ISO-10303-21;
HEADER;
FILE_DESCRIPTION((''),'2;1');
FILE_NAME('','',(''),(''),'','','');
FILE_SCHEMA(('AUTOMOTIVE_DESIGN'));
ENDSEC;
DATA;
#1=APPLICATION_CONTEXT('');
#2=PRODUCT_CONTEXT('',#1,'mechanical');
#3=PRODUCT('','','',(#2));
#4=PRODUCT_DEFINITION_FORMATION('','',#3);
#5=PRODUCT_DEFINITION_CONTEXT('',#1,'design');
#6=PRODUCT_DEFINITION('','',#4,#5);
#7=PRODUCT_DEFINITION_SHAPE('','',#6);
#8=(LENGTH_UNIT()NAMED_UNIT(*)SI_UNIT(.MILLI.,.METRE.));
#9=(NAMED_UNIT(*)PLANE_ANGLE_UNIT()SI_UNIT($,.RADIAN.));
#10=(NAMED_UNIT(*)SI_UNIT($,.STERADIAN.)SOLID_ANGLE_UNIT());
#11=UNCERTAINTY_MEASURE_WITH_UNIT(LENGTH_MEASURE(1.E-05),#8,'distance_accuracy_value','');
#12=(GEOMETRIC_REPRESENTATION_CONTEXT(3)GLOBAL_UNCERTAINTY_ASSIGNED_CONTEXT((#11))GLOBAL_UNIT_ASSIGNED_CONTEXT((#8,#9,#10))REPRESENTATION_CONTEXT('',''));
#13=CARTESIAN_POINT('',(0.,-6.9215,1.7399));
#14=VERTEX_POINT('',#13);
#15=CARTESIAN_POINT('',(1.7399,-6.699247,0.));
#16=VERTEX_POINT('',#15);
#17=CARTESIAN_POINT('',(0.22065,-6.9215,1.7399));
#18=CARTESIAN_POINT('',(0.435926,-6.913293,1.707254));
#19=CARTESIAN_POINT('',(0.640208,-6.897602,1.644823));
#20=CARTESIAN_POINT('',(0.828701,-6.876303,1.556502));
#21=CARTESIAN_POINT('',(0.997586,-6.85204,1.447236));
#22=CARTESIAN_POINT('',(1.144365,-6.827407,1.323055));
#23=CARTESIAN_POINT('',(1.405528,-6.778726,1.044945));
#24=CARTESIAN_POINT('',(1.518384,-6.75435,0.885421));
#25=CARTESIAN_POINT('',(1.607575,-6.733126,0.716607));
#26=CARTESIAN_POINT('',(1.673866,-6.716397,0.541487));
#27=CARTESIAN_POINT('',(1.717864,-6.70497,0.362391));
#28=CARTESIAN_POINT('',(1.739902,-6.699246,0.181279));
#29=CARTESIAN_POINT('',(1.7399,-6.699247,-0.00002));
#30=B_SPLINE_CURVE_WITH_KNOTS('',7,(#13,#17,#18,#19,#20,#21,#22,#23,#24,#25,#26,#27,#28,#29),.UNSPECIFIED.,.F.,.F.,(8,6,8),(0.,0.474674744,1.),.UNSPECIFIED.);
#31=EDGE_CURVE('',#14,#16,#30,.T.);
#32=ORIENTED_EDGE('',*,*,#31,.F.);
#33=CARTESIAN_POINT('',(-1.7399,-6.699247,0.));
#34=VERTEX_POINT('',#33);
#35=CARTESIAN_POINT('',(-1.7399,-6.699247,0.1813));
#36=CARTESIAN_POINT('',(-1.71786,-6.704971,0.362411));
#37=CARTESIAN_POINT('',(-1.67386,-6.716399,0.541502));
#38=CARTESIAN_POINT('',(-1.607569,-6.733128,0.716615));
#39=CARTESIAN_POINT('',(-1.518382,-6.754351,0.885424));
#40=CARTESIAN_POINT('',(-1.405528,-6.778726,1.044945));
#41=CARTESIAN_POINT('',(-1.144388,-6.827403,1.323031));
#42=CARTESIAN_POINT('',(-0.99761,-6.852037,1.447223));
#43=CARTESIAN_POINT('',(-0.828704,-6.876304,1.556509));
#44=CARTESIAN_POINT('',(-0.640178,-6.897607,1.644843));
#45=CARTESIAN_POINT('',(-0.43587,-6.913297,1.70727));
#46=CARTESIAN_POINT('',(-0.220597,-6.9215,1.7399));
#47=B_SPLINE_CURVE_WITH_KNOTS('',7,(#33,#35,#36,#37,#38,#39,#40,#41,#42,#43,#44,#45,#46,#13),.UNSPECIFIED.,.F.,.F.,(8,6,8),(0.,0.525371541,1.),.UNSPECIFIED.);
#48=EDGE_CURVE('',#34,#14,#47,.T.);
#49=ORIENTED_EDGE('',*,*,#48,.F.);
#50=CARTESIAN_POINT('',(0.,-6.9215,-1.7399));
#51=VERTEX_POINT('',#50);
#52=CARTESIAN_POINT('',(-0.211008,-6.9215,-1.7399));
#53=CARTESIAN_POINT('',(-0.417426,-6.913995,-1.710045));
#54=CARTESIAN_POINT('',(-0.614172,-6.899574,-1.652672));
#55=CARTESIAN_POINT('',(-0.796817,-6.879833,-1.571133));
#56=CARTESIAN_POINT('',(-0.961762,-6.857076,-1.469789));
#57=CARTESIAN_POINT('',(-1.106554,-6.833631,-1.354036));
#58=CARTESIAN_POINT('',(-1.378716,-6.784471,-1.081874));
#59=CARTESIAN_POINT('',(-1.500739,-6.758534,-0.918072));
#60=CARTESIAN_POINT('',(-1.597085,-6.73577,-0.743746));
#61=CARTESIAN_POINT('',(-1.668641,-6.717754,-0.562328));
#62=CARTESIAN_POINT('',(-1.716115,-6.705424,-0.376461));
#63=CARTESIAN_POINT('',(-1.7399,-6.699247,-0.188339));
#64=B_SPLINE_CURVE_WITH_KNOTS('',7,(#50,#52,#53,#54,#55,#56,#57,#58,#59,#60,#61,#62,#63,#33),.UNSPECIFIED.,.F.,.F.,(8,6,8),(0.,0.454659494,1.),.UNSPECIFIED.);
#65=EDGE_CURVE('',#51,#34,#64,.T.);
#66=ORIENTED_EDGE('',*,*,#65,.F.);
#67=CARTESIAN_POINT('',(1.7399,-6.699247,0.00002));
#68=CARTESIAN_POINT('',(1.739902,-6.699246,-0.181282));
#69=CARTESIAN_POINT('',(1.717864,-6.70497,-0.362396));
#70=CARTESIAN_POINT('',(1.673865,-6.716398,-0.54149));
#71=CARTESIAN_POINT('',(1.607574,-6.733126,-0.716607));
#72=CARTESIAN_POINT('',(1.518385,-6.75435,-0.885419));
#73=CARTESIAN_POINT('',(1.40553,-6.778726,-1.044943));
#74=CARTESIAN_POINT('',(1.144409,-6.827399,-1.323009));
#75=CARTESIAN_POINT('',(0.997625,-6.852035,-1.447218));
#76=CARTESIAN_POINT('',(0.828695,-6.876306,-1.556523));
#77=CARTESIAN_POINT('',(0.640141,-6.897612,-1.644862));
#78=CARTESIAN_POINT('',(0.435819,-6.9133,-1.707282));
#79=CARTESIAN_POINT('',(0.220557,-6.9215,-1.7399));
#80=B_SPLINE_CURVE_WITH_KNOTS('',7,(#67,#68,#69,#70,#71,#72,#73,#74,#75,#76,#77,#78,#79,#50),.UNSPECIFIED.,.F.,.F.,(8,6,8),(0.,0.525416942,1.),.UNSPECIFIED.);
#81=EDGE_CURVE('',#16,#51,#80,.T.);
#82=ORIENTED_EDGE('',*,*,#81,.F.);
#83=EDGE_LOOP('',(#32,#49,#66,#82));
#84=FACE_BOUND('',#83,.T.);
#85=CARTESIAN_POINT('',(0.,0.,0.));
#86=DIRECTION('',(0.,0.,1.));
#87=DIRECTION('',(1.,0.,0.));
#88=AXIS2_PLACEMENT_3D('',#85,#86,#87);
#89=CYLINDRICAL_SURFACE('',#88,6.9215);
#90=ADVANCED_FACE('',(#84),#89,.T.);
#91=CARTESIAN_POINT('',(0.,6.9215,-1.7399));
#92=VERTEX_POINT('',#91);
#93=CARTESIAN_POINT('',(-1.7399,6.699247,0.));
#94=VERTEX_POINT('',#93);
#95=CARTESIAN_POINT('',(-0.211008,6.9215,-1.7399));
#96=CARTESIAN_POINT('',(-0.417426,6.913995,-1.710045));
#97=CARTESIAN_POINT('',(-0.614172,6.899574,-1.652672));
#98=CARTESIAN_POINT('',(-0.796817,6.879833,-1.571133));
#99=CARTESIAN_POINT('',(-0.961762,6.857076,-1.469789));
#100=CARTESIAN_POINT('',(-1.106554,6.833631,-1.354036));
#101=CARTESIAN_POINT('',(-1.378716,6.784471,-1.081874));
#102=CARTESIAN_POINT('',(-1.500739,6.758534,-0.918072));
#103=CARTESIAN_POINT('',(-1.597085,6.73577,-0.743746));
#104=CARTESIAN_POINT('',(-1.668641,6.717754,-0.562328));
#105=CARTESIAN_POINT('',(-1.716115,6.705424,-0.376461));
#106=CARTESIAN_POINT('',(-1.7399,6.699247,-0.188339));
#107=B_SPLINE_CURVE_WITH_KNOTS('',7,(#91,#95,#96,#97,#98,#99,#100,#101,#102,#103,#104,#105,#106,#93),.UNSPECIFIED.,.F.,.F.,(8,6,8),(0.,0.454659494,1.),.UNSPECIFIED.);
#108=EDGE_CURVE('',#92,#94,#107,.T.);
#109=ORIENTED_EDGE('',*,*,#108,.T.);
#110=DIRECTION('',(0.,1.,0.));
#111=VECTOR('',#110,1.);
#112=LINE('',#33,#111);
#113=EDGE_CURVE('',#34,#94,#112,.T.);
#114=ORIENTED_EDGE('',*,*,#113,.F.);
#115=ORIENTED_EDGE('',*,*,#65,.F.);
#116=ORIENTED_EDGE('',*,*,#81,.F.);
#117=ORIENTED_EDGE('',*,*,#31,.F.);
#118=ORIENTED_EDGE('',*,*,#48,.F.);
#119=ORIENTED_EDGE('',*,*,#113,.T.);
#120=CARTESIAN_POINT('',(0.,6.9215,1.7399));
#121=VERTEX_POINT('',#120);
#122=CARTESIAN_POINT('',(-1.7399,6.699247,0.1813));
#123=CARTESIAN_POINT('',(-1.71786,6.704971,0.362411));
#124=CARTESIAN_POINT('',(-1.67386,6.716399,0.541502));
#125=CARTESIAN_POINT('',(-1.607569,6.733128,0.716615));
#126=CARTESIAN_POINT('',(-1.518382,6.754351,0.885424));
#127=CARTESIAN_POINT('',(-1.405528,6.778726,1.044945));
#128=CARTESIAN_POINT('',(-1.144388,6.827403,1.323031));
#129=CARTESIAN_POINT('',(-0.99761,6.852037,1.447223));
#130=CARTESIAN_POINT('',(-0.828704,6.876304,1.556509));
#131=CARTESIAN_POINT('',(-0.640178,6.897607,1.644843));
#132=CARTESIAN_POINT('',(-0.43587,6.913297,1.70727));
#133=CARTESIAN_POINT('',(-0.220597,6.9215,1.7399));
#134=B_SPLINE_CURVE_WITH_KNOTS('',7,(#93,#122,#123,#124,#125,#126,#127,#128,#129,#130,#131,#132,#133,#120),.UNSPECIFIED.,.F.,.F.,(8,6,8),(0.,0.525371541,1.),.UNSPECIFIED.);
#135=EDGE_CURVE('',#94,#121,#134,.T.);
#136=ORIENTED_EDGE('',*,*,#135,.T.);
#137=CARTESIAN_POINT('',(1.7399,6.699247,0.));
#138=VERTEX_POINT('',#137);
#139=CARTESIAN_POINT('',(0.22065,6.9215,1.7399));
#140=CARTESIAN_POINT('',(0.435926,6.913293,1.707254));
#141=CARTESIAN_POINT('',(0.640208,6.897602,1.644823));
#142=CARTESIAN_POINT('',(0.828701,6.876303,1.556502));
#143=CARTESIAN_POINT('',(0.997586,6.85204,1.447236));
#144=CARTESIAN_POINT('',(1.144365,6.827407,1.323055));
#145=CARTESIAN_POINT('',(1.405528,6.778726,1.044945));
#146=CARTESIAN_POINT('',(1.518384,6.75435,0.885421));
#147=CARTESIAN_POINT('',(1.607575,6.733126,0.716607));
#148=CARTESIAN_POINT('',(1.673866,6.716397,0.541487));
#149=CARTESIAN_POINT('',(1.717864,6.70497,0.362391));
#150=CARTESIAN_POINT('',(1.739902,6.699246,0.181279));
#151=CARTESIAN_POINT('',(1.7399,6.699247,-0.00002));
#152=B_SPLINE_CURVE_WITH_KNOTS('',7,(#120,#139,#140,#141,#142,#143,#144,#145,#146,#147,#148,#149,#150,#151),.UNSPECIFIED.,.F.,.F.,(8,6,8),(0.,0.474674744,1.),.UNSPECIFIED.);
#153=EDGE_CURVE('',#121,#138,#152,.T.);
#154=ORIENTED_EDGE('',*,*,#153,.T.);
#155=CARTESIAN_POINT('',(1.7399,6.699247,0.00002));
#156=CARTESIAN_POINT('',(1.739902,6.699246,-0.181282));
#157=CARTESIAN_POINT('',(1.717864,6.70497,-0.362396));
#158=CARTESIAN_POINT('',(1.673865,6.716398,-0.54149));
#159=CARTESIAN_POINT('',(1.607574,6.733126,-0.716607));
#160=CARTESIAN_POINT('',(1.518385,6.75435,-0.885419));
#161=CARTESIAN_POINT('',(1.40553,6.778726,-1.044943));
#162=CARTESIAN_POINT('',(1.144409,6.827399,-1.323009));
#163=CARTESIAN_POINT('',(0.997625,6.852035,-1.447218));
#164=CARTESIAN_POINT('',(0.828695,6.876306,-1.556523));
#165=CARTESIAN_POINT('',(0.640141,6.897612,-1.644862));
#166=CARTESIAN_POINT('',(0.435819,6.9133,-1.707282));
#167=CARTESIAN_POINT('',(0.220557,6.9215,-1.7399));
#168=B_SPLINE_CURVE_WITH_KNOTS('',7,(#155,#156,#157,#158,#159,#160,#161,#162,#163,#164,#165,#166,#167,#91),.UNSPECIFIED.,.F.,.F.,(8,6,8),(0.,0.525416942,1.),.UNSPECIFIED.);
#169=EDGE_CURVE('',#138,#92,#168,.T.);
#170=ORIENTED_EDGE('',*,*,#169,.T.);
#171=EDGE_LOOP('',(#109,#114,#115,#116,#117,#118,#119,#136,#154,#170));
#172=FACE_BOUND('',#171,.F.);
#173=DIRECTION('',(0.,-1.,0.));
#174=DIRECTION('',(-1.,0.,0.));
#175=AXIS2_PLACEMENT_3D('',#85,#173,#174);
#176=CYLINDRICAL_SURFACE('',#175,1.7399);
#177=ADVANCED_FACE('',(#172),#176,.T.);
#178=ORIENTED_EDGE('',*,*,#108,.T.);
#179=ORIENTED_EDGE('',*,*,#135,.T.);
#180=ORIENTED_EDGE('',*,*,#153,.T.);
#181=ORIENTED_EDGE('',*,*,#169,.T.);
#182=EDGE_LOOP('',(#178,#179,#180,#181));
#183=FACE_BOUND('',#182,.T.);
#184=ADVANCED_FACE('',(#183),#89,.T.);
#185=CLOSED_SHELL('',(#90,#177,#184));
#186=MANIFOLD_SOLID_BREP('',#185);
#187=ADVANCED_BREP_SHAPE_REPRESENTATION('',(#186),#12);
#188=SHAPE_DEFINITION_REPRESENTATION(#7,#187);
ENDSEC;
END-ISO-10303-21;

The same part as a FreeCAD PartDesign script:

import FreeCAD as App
import Part
import Sketcher
from FreeCAD import Vector
Q = App.Units.Quantity

doc = App.newDocument("Part")
body = doc.addObject("PartDesign::Body", "Body")

sketch1 = doc.addObject("Sketcher::SketchObject", "Sketch")
body.addObject(sketch1)
sketch1.AttachmentSupport = (doc.XZ_Plane, [""])
sketch1.MapMode = "FlatFace"
sketch1.addGeometry(Part.Circle(Vector(0, 0, 0), Vector(0, 0, 1), 1.7), False)
sketch1.addConstraint(Sketcher.Constraint("Coincident", 0, 3, -1, 1))
sketch1.addConstraint(Sketcher.Constraint("Diameter", 0, Q("0.137 in")))
pad1 = doc.addObject("PartDesign::Pad", "Pad")
body.addObject(pad1)
pad1.Profile = sketch1
pad1.Length = Q("0.545 in")
pad1.Midplane = True

sketch2 = doc.addObject("Sketcher::SketchObject", "Sketch001")
body.addObject(sketch2)
sketch2.AttachmentSupport = (doc.XY_Plane, [""])
sketch2.MapMode = "FlatFace"
sketch2.addGeometry(Part.Circle(Vector(0, 0, 0), Vector(0, 0, 1), 7), False)
sketch2.addGeometry(Part.Circle(Vector(0, 0, 0), Vector(0, 0, 1), 7), False)
sketch2.addConstraint(Sketcher.Constraint("Coincident", 0, 3, -1, 1))
sketch2.addConstraint(Sketcher.Constraint("Coincident", 1, 3, -1, 1))
sketch2.addConstraint(Sketcher.Constraint("Diameter", 1, Q("0.545 in")))
sketch2.addConstraint(Sketcher.Constraint("Diameter", 0, Q("14.2736 mm")))
pocket1 = doc.addObject("PartDesign::Pocket", "Pocket")
body.addObject(pocket1)
pocket1.Profile = sketch2
pocket1.Type = "ThroughAll"
pocket1.Midplane = True

doc.recompute()
